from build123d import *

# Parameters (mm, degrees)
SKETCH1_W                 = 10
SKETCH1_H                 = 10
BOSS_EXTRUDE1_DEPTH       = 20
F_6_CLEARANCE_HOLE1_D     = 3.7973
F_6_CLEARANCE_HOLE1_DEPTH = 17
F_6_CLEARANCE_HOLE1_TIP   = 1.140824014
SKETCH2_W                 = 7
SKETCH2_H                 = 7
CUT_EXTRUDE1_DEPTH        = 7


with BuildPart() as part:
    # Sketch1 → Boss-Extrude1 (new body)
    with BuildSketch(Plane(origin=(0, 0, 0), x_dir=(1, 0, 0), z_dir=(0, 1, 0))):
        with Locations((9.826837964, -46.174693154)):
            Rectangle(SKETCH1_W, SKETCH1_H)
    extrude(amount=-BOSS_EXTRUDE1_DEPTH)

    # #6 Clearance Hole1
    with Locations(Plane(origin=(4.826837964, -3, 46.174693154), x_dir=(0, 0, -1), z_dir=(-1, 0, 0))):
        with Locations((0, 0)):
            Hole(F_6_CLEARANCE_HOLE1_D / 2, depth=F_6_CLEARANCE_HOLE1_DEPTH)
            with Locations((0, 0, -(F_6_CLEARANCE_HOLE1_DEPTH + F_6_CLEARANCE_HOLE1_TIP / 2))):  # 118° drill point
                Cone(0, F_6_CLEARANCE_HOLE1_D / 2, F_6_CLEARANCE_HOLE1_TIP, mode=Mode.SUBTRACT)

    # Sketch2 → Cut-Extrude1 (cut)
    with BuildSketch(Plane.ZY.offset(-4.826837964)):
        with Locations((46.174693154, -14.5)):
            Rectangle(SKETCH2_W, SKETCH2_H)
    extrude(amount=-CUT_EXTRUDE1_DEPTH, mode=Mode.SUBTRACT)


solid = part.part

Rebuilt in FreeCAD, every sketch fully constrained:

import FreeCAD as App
import Part
import Sketcher

V = App.Vector
Q = App.Units.Quantity

doc = App.newDocument("Part")
body = doc.addObject("PartDesign::Body", "Body")

sketch1 = doc.addObject("Sketcher::SketchObject", "Sketch")
body.addObject(sketch1)
sketch1.AttachmentSupport = (doc.XZ_Plane, [""])
sketch1.MapMode = "FlatFace"
sketch1.addGeometry(Part.LineSegment(V(4.826838, 41.174693, 0), V(4.826838, 51.174693, 0)), False)
sketch1.addGeometry(Part.LineSegment(V(4.826838, 51.174693, 0), V(14.826838, 51.174693, 0)), False)
sketch1.addGeometry(Part.LineSegment(V(14.826838, 51.174693, 0), V(14.826838, 41.174693, 0)), False)
sketch1.addGeometry(Part.LineSegment(V(14.826838, 41.174693, 0), V(4.826838, 41.174693, 0)), False)
sketch1.addConstraint(Sketcher.Constraint("Coincident", 0, 2, 1, 1))
sketch1.addConstraint(Sketcher.Constraint("Coincident", 1, 2, 2, 1))
sketch1.addConstraint(Sketcher.Constraint("Coincident", 2, 2, 3, 1))
sketch1.addConstraint(Sketcher.Constraint("Coincident", 3, 2, 0, 1))
sketch1.addConstraint(Sketcher.Constraint("Vertical", 0))
sketch1.addConstraint(Sketcher.Constraint("Horizontal", 1))
sketch1.addConstraint(Sketcher.Constraint("Vertical", 2))
sketch1.addConstraint(Sketcher.Constraint("Horizontal", 3))
sketch1.addConstraint(Sketcher.Constraint("Equal", 3, 0))
sketch1.addConstraint(Sketcher.Constraint("DistanceX", 1, 1, 1, 2, Q("10 mm")))
sketch1.addConstraint(Sketcher.Constraint("DistanceX", -1, 1, 0, 2, Q("4.826838 mm")))
sketch1.addConstraint(Sketcher.Constraint("DistanceY", -1, 1, 0, 2, Q("51.174693 mm")))
pad1 = doc.addObject("PartDesign::Pad", "Pad")
body.addObject(pad1)
pad1.Profile = sketch1
pad1.Length = 20

sketch2 = doc.addObject("Sketcher::SketchObject", "Sketch001")
body.addObject(sketch2)
sketch2.AttachmentSupport = (doc.YZ_Plane, [""])
sketch2.MapMode = "FlatFace"
sketch2.AttachmentOffset = App.Placement(V(0, 0, 4.826838), App.Rotation())
sketch2.addGeometry(Part.Circle(V(-3, 46.174693, 0), V(0, 0, 1), 1.89865), False)
sketch2.addConstraint(Sketcher.Constraint("DistanceX", 0, 3, -1, 1, Q("3 mm")))
sketch2.addConstraint(Sketcher.Constraint("Diameter", 0, Q("3.7973 mm")))
sketch2.addConstraint(Sketcher.Constraint("DistanceY", -1, 1, 0, 3, Q("46.174693 mm")))
doc.recompute()
hole = doc.addObject("PartDesign::Hole", "Hole")
body.addObject(hole)
hole.Profile = sketch2
hole.ThreadType = "None"
hole.Diameter = 3.7973
hole.DepthType = "Dimension"
hole.Depth = 17
hole.DrillPoint = "Angled"
hole.DrillPointAngle = 118
hole.Reversed = True

sketch3 = doc.addObject("Sketcher::SketchObject", "Sketch002")
body.addObject(sketch3)
sketch3.AttachmentSupport = (doc.YZ_Plane, [""])
sketch3.MapMode = "FlatFace"
sketch3.AttachmentOffset = App.Placement(V(0, 0, 4.826838), App.Rotation())
sketch3.addGeometry(Part.LineSegment(V(-11, 42.674693, 0), V(-18, 42.674693, 0)), False)
sketch3.addGeometry(Part.LineSegment(V(-18, 42.674693, 0), V(-18, 49.674693, 0)), False)
sketch3.addGeometry(Part.LineSegment(V(-18, 49.674693, 0), V(-11, 49.674693, 0)), False)
sketch3.addGeometry(Part.LineSegment(V(-11, 49.674693, 0), V(-11, 42.674693, 0)), False)
sketch3.addConstraint(Sketcher.Constraint("Coincident", 0, 2, 1, 1))
sketch3.addConstraint(Sketcher.Constraint("Coincident", 1, 2, 2, 1))
sketch3.addConstraint(Sketcher.Constraint("Coincident", 2, 2, 3, 1))
sketch3.addConstraint(Sketcher.Constraint("Coincident", 3, 2, 0, 1))
sketch3.addConstraint(Sketcher.Constraint("Horizontal", 0))
sketch3.addConstraint(Sketcher.Constraint("Vertical", 1))
sketch3.addConstraint(Sketcher.Constraint("Horizontal", 2))
sketch3.addConstraint(Sketcher.Constraint("Vertical", 3))
sketch3.addConstraint(Sketcher.Constraint("Equal", 2, 1))
sketch3.addConstraint(Sketcher.Constraint("DistanceX", 0, 2, 0, 1, Q("7 mm")))
sketch3.addConstraint(Sketcher.Constraint("DistanceX", 0, 2, -1, 1, Q("18 mm")))
sketch3.addConstraint(Sketcher.Constraint("DistanceY", -1, 1, 0, 2, Q("42.674693 mm")))
pocket1 = doc.addObject("PartDesign::Pocket", "Pocket")
body.addObject(pocket1)
pocket1.Profile = sketch3
pocket1.Length = 7
pocket1.Reversed = True

doc.recompute()
